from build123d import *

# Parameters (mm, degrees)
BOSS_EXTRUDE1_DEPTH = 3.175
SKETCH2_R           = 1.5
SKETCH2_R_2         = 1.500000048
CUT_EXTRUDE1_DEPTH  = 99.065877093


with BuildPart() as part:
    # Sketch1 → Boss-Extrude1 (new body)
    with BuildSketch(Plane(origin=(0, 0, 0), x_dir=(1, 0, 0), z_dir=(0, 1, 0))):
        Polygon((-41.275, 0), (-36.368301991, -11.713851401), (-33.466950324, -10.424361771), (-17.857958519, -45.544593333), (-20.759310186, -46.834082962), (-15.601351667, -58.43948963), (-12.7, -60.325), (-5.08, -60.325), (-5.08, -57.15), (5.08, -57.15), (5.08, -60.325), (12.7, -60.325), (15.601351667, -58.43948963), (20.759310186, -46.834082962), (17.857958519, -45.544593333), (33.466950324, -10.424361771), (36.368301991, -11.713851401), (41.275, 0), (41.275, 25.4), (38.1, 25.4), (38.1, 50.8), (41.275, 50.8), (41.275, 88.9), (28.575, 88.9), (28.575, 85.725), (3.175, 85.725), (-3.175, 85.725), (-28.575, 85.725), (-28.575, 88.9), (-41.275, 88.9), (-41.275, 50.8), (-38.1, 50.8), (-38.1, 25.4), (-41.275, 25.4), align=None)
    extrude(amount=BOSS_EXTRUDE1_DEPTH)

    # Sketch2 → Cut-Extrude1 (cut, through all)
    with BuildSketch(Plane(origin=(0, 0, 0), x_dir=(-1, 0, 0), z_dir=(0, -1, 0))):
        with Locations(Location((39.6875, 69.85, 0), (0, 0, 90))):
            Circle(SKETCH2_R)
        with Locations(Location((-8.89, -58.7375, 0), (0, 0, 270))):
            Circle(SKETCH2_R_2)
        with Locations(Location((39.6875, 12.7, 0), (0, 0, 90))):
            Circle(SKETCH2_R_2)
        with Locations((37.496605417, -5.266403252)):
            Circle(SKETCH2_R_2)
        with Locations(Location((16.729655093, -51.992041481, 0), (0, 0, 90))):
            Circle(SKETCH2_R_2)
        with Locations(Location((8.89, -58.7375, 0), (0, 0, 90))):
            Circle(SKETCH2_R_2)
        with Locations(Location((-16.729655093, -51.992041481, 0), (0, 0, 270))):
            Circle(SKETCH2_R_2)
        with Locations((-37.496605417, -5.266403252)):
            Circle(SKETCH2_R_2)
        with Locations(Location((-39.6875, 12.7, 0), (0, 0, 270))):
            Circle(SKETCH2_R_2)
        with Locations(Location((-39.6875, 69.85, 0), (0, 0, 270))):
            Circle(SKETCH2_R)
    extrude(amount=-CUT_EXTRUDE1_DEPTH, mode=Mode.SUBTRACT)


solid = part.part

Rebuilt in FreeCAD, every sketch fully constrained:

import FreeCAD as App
import Part
import Sketcher
from FreeCAD import Vector
Q = App.Units.Quantity

doc = App.newDocument("Part")
body = doc.addObject("PartDesign::Body", "Body")

# Sketch on XZ plane
sketch1 = doc.addObject("Sketcher::SketchObject", "Sketch")
body.addObject(sketch1)
sketch1.AttachmentSupport = (doc.XZ_Plane, [""])
sketch1.MapMode = "FlatFace"
sketch1.addGeometry([
    Part.LineSegment(Vector(-41.3, 0, 0), Vector(-36.4, 11.7, 0)),  # 0
    Part.LineSegment(Vector(-36.4, 11.7, 0), Vector(-33.5, 10.4, 0)),  # 1
    Part.LineSegment(Vector(-33.5, 10.4, 0), Vector(-17.9, 45.5, 0)),  # 2
    Part.LineSegment(Vector(-17.9, 45.5, 0), Vector(-20.8, 46.8, 0)),  # 3
    Part.LineSegment(Vector(-20.8, 46.8, 0), Vector(-15.6, 58.4, 0)),  # 4
    Part.LineSegment(Vector(-15.6, 58.4, 0), Vector(-12.7, 60.3, 0)),  # 5
    Part.LineSegment(Vector(-12.7, 60.3, 0), Vector(-5.1, 60.3, 0)),  # 6
    Part.LineSegment(Vector(-5.1, 60.3, 0), Vector(-5.1, 57.1, 0)),  # 7
    Part.LineSegment(Vector(-5.1, 57.1, 0), Vector(5.1, 57.1, 0)),  # 8
    Part.LineSegment(Vector(5.1, 57.1, 0), Vector(5.1, 60.3, 0)),  # 9
    Part.LineSegment(Vector(5.1, 60.3, 0), Vector(12.7, 60.3, 0)),  # 10
    Part.LineSegment(Vector(12.7, 60.3, 0), Vector(15.6, 58.4, 0)),  # 11
    Part.LineSegment(Vector(15.6, 58.4, 0), Vector(20.8, 46.8, 0)),  # 12
    Part.LineSegment(Vector(20.8, 46.8, 0), Vector(17.9, 45.5, 0)),  # 13
    Part.LineSegment(Vector(17.9, 45.5, 0), Vector(33.5, 10.4, 0)),  # 14
    Part.LineSegment(Vector(33.5, 10.4, 0), Vector(36.4, 11.7, 0)),  # 15
    Part.LineSegment(Vector(36.4, 11.7, 0), Vector(41.3, 0, 0)),  # 16
    Part.LineSegment(Vector(41.3, 0, 0), Vector(41.3, -25.4, 0)),  # 17
    Part.LineSegment(Vector(41.3, -25.4, 0), Vector(38.1, -25.4, 0)),  # 18
    Part.LineSegment(Vector(38.1, -25.4, 0), Vector(38.1, -50.8, 0)),  # 19
    Part.LineSegment(Vector(38.1, -50.8, 0), Vector(41.3, -50.8, 0)),  # 20
    Part.LineSegment(Vector(41.3, -50.8, 0), Vector(41.3, -88.9, 0)),  # 21
    Part.LineSegment(Vector(41.3, -88.9, 0), Vector(28.6, -88.9, 0)),  # 22
    Part.LineSegment(Vector(28.6, -88.9, 0), Vector(28.6, -85.7, 0)),  # 23
    Part.LineSegment(Vector(28.6, -85.7, 0), Vector(-28.6, -85.7, 0)),  # 24
    Part.LineSegment(Vector(-28.6, -85.7, 0), Vector(-28.6, -88.9, 0)),  # 25
    Part.LineSegment(Vector(-28.6, -88.9, 0), Vector(-41.3, -88.9, 0)),  # 26
    Part.LineSegment(Vector(-41.3, -88.9, 0), Vector(-41.3, -50.8, 0)),  # 27
    Part.LineSegment(Vector(-41.3, -50.8, 0), Vector(-38.1, -50.8, 0)),  # 28
    Part.LineSegment(Vector(-38.1, -50.8, 0), Vector(-38.1, -25.4, 0)),  # 29
    Part.LineSegment(Vector(-38.1, -25.4, 0), Vector(-41.3, -25.4, 0)),  # 30
    Part.LineSegment(Vector(-41.3, -25.4, 0), Vector(-41.3, 0, 0)),  # 31
], False)
sketch1.addConstraint([
    Sketcher.Constraint("Coincident", 0, 2, 1, 1),
    Sketcher.Constraint("Coincident", 1, 2, 2, 1),
    Sketcher.Constraint("Coincident", 2, 2, 3, 1),
    Sketcher.Constraint("Coincident", 3, 2, 4, 1),
    Sketcher.Constraint("Coincident", 4, 2, 5, 1),
    Sketcher.Constraint("Coincident", 5, 2, 6, 1),
    Sketcher.Constraint("Coincident", 6, 2, 7, 1),
    Sketcher.Constraint("Coincident", 7, 2, 8, 1),
    Sketcher.Constraint("Coincident", 8, 2, 9, 1),
    Sketcher.Constraint("Coincident", 9, 2, 10, 1),
    Sketcher.Constraint("Coincident", 10, 2, 11, 1),
    Sketcher.Constraint("Coincident", 11, 2, 12, 1),
    Sketcher.Constraint("Coincident", 12, 2, 13, 1),
    Sketcher.Constraint("Coincident", 13, 2, 14, 1),
    Sketcher.Constraint("Coincident", 14, 2, 15, 1),
    Sketcher.Constraint("Coincident", 15, 2, 16, 1),
    Sketcher.Constraint("Coincident", 16, 2, 17, 1),
    Sketcher.Constraint("Coincident", 17, 2, 18, 1),
    Sketcher.Constraint("Coincident", 18, 2, 19, 1),
    Sketcher.Constraint("Coincident", 19, 2, 20, 1),
    Sketcher.Constraint("Coincident", 20, 2, 21, 1),
    Sketcher.Constraint("Coincident", 21, 2, 22, 1),
    Sketcher.Constraint("Coincident", 22, 2, 23, 1),
    Sketcher.Constraint("Coincident", 23, 2, 24, 1),
    Sketcher.Constraint("Coincident", 24, 2, 25, 1),
    Sketcher.Constraint("Coincident", 25, 2, 26, 1),
    Sketcher.Constraint("Coincident", 26, 2, 27, 1),
    Sketcher.Constraint("Coincident", 27, 2, 28, 1),
    Sketcher.Constraint("Coincident", 28, 2, 29, 1),
    Sketcher.Constraint("Coincident", 29, 2, 30, 1),
    Sketcher.Constraint("Coincident", 30, 2, 31, 1),
    Sketcher.Constraint("Coincident", 31, 2, 0, 1),
    Sketcher.Constraint("Horizontal", 6),
    Sketcher.Constraint("Vertical", 7),
    Sketcher.Constraint("Horizontal", 8),
    Sketcher.Constraint("Vertical", 9),
    Sketcher.Constraint("Horizontal", 10),
    Sketcher.Constraint("Vertical", 17),
    Sketcher.Constraint("Horizontal", 18),
    Sketcher.Constraint("Vertical", 19),
    Sketcher.Constraint("Horizontal", 20),
    Sketcher.Constraint("Vertical", 21),
    Sketcher.Constraint("Horizontal", 22),
    Sketcher.Constraint("Vertical", 23),
    Sketcher.Constraint("Horizontal", 24),
    Sketcher.Constraint("Vertical", 25),
    Sketcher.Constraint("Horizontal", 26),
    Sketcher.Constraint("Vertical", 27),
    Sketcher.Constraint("Horizontal", 28),
    Sketcher.Constraint("Vertical", 29),
    Sketcher.Constraint("Horizontal", 30),
    Sketcher.Constraint("Vertical", 31),
    Sketcher.Constraint("Symmetric", 16, 2, 31, 2, -1, 1),
    Sketcher.Constraint("Symmetric", 6, 2, 9, 2, -2),
    Sketcher.Constraint("Symmetric", 4, 2, 11, 2, -2),
    Sketcher.Constraint("Symmetric", 3, 2, 12, 2, -2),
    Sketcher.Constraint("Symmetric", 2, 2, 13, 2, -2),
    Sketcher.Constraint("Symmetric", 1, 2, 14, 2, -2),
    Sketcher.Constraint("Symmetric", 0, 2, 15, 2, -2),
    Sketcher.Constraint("Symmetric", 22, 2, 25, 2, -2),
    Sketcher.Constraint("Symmetric", 20, 2, 27, 2, -2),
    Sketcher.Constraint("Symmetric", 18, 2, 29, 2, -2),
    Sketcher.Constraint("PointOnObject", 16, 2, -1),
    Sketcher.Constraint("Perpendicular", 1, 2),
    Sketcher.Constraint("Perpendicular", 2, 3),
    Sketcher.Constraint("Perpendicular", 3, 4),
    Sketcher.Constraint("Vertical", 17, 2, 20, 2),
    Sketcher.Constraint("Equal", 6, 10),
    Sketcher.Constraint("Equal", 30, 7),
    Sketcher.Constraint("Equal", 17, 19),
    Sketcher.Constraint("Equal", 9, 23),
    Sketcher.Constraint("Equal", 1, 3),
    Sketcher.Constraint("Equal", 0, 4),
    Sketcher.Constraint("DistanceY", 17, 2, 17, 1, Q("1 in")),
    Sketcher.Constraint("DistanceX", 6, 1, 6, 2, Q("0.3 in")),
    Sketcher.Constraint("DistanceX", 8, 1, 8, 2, Q("0.4 in")),
    Sketcher.Constraint("DistanceX", 22, 2, 22, 1, Q("0.5 in")),
    Sketcher.Constraint("DistanceY", 21, 2, 21, 1, Q("1.5 in")),
    Sketcher.Constraint("Distance", 0, Q("0.5 in")),
    Sketcher.Constraint("DistanceX", 24, 2, 24, 1, Q("2.25 in")),
    Sketcher.Constraint("DistanceX", -1, 1, 18, 2, Q("1.5 in")),
    Sketcher.Constraint("DistanceY", -1, 1, 7, 2, Q("2.25 in")),
    Sketcher.Constraint("Distance", 1, Q("0.125 in")),
    Sketcher.Constraint("Distance", 5, 3.460201),
    Sketcher.Constraint("DistanceX", 0, 2, -1, 1, 36.368302),
    Sketcher.Constraint("DistanceX", 1, 2, 4, 2, 17.865599),
])
pad1 = doc.addObject("PartDesign::Pad", "Pad")
body.addObject(pad1)
pad1.Profile = sketch1
pad1.Length = Q("0.125 in")
pad1.Reversed = True

# Sketch on XZ plane
sketch2 = doc.addObject("Sketcher::SketchObject", "Sketch001")
body.addObject(sketch2)
sketch2.AttachmentSupport = (doc.XZ_Plane, [""])
sketch2.MapMode = "FlatFace"
sketch2.addGeometry([
    Part.Circle(Vector(-39.7, -69.8, 0), Vector(0, 0, 1), 1.5),  # 0
    Part.Circle(Vector(8.9, 58.7, 0), Vector(0, 0, 1), 1.5),  # 1
    Part.Circle(Vector(-39.7, -12.7, 0), Vector(0, 0, 1), 1.5),  # 2
    Part.Circle(Vector(-37.5, 5.3, 0), Vector(0, 0, 1), 1.5),  # 3
    Part.Circle(Vector(-16.7, 52, 0), Vector(0, 0, 1), 1.5),  # 4
    Part.Circle(Vector(-8.9, 58.7, 0), Vector(0, 0, 1), 1.5),  # 5
    Part.Circle(Vector(16.7, 52, 0), Vector(0, 0, 1), 1.5),  # 6
    Part.Circle(Vector(37.5, 5.3, 0), Vector(0, 0, 1), 1.5),  # 7
    Part.Circle(Vector(39.7, -12.7, 0), Vector(0, 0, 1), 1.5),  # 8
    Part.Circle(Vector(39.7, -69.8, 0), Vector(0, 0, 1), 1.5),  # 9
], False)
sketch2.addConstraint([
    Sketcher.Constraint("Equal", 0, 1),
    Sketcher.Constraint("Equal", 1, 2),
    Sketcher.Constraint("Equal", 2, 3),
    Sketcher.Constraint("Equal", 3, 4),
    Sketcher.Constraint("Equal", 4, 5),
    Sketcher.Constraint("Equal", 5, 6),
    Sketcher.Constraint("Equal", 6, 7),
    Sketcher.Constraint("Equal", 7, 8),
    Sketcher.Constraint("Equal", 8, 9),
    Sketcher.Constraint("Symmetric", 1, 3, 5, 3, -2),
    Sketcher.Constraint("Symmetric", 4, 3, 6, 3, -2),
    Sketcher.Constraint("Symmetric", 3, 3, 7, 3, -2),
    Sketcher.Constraint("Symmetric", 2, 3, 8, 3, -2),
    Sketcher.Constraint("Symmetric", 0, 3, 9, 3, -2),
    Sketcher.Constraint("Vertical", 0, 3, 2, 3),
    Sketcher.Constraint("DistanceY", 2, 3, -1, 1, Q("0.5 in")),
    Sketcher.Constraint("DistanceX", 5, 3, 1, 3, Q("0.7 in")),
    Sketcher.Constraint("Diameter", 0, 3.0),
    Sketcher.Constraint("DistanceY", 0, 3, -1, 1, Q("2.75 in")),
    Sketcher.Constraint("DistanceX", 0, 3, -1, 1, Q("1.5625 in")),
    Sketcher.Constraint("DistanceY", -1, 1, 1, 3, Q("2.3125 in")),
    Sketcher.Constraint("DistanceY", -1, 1, 4, 3, 51.992041),
    Sketcher.Constraint("DistanceX", 3, 3, 4, 3, 20.76695),
    Sketcher.Constraint("DistanceY", 3, 3, 4, 3, 46.725638),
    Sketcher.Constraint("DistanceX", 4, 3, 6, 3, 33.45931),
])
pocket1 = doc.addObject("PartDesign::Pocket", "Pocket")
body.addObject(pocket1)
pocket1.Profile = sketch2
pocket1.Type = "ThroughAll"

doc.recompute()
